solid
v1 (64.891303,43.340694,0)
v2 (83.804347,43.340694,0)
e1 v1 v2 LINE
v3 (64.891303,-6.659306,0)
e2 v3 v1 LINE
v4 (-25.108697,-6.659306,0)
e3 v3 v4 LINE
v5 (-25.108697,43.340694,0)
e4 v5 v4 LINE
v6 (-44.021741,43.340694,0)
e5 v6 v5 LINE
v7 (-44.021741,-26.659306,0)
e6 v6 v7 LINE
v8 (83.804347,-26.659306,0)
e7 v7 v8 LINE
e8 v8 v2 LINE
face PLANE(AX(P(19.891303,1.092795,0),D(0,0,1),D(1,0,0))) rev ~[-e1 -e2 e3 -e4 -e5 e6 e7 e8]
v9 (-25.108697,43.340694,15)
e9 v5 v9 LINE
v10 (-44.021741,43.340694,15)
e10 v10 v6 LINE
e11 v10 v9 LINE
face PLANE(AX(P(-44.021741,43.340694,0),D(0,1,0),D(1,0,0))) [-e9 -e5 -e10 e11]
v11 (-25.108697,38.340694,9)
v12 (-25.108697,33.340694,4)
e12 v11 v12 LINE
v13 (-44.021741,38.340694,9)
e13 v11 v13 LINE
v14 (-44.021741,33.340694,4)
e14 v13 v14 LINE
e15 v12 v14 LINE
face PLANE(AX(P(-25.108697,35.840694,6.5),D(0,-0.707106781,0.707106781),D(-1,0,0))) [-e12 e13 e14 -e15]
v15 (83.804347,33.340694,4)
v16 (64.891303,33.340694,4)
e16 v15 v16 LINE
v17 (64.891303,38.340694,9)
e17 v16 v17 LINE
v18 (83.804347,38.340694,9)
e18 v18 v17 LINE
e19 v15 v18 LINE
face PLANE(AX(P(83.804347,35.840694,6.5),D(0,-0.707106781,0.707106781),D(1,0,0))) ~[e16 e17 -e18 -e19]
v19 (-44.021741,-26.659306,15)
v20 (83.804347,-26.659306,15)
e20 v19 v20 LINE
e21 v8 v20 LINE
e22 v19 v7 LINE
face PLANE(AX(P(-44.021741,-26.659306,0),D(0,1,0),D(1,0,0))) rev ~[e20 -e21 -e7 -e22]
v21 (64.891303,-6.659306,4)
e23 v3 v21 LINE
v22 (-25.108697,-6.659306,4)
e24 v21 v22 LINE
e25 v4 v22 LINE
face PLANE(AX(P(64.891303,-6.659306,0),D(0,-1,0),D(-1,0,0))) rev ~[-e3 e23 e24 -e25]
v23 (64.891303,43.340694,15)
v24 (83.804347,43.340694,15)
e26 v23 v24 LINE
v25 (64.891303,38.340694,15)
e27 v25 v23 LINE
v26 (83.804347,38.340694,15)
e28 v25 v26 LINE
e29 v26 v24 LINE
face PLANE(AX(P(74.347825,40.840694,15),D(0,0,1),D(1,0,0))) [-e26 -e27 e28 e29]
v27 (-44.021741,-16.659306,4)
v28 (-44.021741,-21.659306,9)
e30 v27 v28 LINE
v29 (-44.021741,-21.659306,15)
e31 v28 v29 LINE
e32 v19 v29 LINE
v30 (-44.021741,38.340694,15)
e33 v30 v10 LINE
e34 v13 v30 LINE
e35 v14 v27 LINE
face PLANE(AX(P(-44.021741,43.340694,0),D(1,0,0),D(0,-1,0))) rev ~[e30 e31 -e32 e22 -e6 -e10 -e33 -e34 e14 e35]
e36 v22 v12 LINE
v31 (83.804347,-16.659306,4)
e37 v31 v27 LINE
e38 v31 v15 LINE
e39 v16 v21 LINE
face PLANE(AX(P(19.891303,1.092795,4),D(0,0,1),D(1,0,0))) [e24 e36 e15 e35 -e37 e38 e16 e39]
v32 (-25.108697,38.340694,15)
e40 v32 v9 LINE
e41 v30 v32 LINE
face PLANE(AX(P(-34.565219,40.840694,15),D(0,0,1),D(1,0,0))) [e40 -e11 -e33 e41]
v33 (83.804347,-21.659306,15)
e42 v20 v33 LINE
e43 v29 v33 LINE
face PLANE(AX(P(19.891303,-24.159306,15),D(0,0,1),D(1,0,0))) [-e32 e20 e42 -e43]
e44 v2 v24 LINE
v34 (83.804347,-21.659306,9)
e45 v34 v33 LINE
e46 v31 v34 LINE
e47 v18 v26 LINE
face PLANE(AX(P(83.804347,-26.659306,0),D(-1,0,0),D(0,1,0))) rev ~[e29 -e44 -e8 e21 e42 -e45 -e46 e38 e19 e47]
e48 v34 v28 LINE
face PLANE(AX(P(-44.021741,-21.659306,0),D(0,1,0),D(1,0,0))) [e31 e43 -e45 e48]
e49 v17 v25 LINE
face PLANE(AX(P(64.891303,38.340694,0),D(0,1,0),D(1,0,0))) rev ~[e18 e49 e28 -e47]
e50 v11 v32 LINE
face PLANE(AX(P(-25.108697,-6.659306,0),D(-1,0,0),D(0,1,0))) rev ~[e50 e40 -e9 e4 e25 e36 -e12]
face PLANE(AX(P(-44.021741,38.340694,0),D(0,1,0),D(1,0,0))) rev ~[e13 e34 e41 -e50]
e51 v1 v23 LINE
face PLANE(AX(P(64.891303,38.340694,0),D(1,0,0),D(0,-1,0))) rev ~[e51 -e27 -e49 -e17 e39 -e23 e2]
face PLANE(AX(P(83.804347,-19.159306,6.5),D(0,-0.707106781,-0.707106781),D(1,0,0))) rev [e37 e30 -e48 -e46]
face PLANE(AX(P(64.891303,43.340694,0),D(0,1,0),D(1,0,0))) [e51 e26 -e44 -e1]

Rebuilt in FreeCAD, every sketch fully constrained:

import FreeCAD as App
import Part
import Sketcher


def edges_at(feature, points):
    """Names of the edges that pass closest to the given points."""
    edges = feature.Shape.Edges
    near = lambda p: min(range(len(edges)), key=lambda i: edges[i].distToShape(Part.Vertex(*p))[0])
    return sorted({f"Edge{near(p) + 1}" for p in points})


def add_polygon(sketch, points):
    """Adds a closed chain of lines whose ends are joined by coincident constraints."""
    first, n = sketch.GeometryCount, len(points)
    for a, b in zip(points, points[1:] + points[:1]):
        sketch.addGeometry(Part.LineSegment(App.Vector(*a, 0), App.Vector(*b, 0)), False)
    for i in range(n):
        sketch.addConstraint(Sketcher.Constraint("Coincident", first + i, 2, first + (i + 1) % n, 1))

doc = App.newDocument("Part")
body = doc.addObject("PartDesign::Body", "Body")

sketch1 = doc.addObject("Sketcher::SketchObject", "Sketch")
body.addObject(sketch1)
sketch1.AttachmentSupport = (doc.XY_Plane, [""])
sketch1.MapMode = "FlatFace"
add_polygon(sketch1, [(-44.021741, -26.659306), (83.804347, -26.659306), (83.804347, 38.340694), (64.891303, 38.340694), (64.891303, -6.659306), (-25.108697, -6.659306), (-25.108697, 43.340694), (-44.021741, 43.340694)])
sketch1.addConstraint([
    Sketcher.Constraint("Horizontal", 0),
    Sketcher.Constraint("Vertical", 1),
    Sketcher.Constraint("Horizontal", 2),
    Sketcher.Constraint("Vertical", 3),
    Sketcher.Constraint("Horizontal", 4),
    Sketcher.Constraint("Vertical", 5),
    Sketcher.Constraint("Horizontal", 6),
    Sketcher.Constraint("Vertical", 7),
    Sketcher.Constraint("Equal", 2, 6),
    Sketcher.Constraint("DistanceX", 4, 2, 4, 1, 90.0),
    Sketcher.Constraint("DistanceY", 1, 1, 1, 2, 65.0),
    Sketcher.Constraint("DistanceY", 3, 2, 3, 1, 45.0),
    Sketcher.Constraint("DistanceY", 5, 1, 5, 2, 50.0),
    Sketcher.Constraint("DistanceX", 0, 1, 0, 2, 127.826088),
    Sketcher.Constraint("DistanceX", 6, 2, -1, 1, 44.021741),
    Sketcher.Constraint("DistanceY", 0, 2, -1, 1, 26.659306),
])
pad1 = doc.addObject("PartDesign::Pad", "Pad")
body.addObject(pad1)
pad1.Profile = sketch1
pad1.Length = 4

sketch2 = doc.addObject("Sketcher::SketchObject", "Sketch001")
body.addObject(sketch2)
sketch2.AttachmentSupport = (doc.XY_Plane, [""])
sketch2.MapMode = "FlatFace"
add_polygon(sketch2, [(-44.021741, -21.659306), (-44.021741, -26.659306), (83.804347, -26.659306), (83.804347, -21.659306)])
add_polygon(sketch2, [(-44.021741, 43.340694), (-44.021741, 38.340694), (-25.108697, 38.340694), (-25.108697, 43.340694)])
add_polygon(sketch2, [(64.891303, 43.340694), (64.891303, 38.340694), (83.804347, 38.340694), (83.804347, 43.340694)])
sketch2.addConstraint([
    Sketcher.Constraint("Vertical", 0),
    Sketcher.Constraint("Horizontal", 1),
    Sketcher.Constraint("Vertical", 2),
    Sketcher.Constraint("Horizontal", 3),
    Sketcher.Constraint("Vertical", 4),
    Sketcher.Constraint("Horizontal", 5),
    Sketcher.Constraint("Vertical", 6),
    Sketcher.Constraint("Horizontal", 7),
    Sketcher.Constraint("Vertical", 8),
    Sketcher.Constraint("Horizontal", 9),
    Sketcher.Constraint("Vertical", 10),
    Sketcher.Constraint("Horizontal", 11),
    Sketcher.Constraint("Horizontal", 5, 2, 8, 2),
    Sketcher.Constraint("Horizontal", 7, 2, 10, 2),
    Sketcher.Constraint("Vertical", 3, 2, 4, 2),
    Sketcher.Constraint("Vertical", 2, 2, 9, 2),
    Sketcher.Constraint("Equal", 7, 9),
    Sketcher.Constraint("Equal", 2, 4),
    Sketcher.Constraint("DistanceY", 0, 2, 0, 1, 5.0),
    Sketcher.Constraint("DistanceY", 3, 2, 4, 2, 60.0),
    Sketcher.Constraint("DistanceX", 5, 2, 8, 2, 90.0),
    Sketcher.Constraint("DistanceX", 1, 1, 1, 2, 127.826088),
    Sketcher.Constraint("DistanceX", 0, 2, -1, 1, 44.021741),
    Sketcher.Constraint("DistanceY", 0, 2, -1, 1, 26.659306),
])
pad2 = doc.addObject("PartDesign::Pad", "Pad001")
body.addObject(pad2)
pad2.Profile = sketch2
pad2.Length = 15
doc.recompute()

chamfer = doc.addObject("PartDesign::Chamfer", "Chamfer")
body.addObject(chamfer)
chamfer.Base = (pad2, edges_at(pad2, [(19.891, -21.659, 4), (-34.565, 38.341, 4), (74.348, 38.341, 4)]))
chamfer.Size = 5

doc.recompute()
